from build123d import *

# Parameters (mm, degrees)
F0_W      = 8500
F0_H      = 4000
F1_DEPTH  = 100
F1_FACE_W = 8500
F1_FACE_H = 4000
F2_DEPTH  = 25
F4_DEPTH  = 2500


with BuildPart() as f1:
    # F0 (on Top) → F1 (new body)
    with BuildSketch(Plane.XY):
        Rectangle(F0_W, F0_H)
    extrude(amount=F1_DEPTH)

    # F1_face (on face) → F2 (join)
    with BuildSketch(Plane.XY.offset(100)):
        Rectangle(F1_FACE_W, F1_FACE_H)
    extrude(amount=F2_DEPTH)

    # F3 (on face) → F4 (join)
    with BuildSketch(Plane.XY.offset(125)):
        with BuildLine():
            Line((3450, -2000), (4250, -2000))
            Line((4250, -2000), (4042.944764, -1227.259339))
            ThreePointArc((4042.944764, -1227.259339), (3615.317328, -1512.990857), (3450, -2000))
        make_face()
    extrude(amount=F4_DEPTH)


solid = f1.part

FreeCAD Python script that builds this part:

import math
import FreeCAD as App
import Part
import Sketcher
Q = App.Units.Quantity

doc = App.newDocument("Part")
body = doc.addObject("PartDesign::Body", "Body")

sketch1 = doc.addObject("Sketcher::SketchObject", "Sketch")
body.addObject(sketch1)
sketch1.AttachmentSupport = (doc.XY_Plane, [""])
sketch1.MapMode = "FlatFace"
sketch1.addGeometry(Part.LineSegment(App.Vector(-4250, 2000, 0), App.Vector(-4250, -2000, 0)), False)
sketch1.addGeometry(Part.LineSegment(App.Vector(-4250, -2000, 0), App.Vector(4250, -2000, 0)), False)
sketch1.addGeometry(Part.LineSegment(App.Vector(4250, -2000, 0), App.Vector(4250, 2000, 0)), False)
sketch1.addGeometry(Part.LineSegment(App.Vector(4250, 2000, 0), App.Vector(-4250, 2000, 0)), False)
sketch1.addConstraint(Sketcher.Constraint("Coincident", 0, 2, 1, 1))
sketch1.addConstraint(Sketcher.Constraint("Coincident", 1, 2, 2, 1))
sketch1.addConstraint(Sketcher.Constraint("Coincident", 2, 2, 3, 1))
sketch1.addConstraint(Sketcher.Constraint("Coincident", 3, 2, 0, 1))
sketch1.addConstraint(Sketcher.Constraint("Vertical", 0))
sketch1.addConstraint(Sketcher.Constraint("Horizontal", 1))
sketch1.addConstraint(Sketcher.Constraint("Vertical", 2))
sketch1.addConstraint(Sketcher.Constraint("Horizontal", 3))
sketch1.addConstraint(Sketcher.Constraint("Symmetric", 0, 2, 2, 2, -1, 1))
sketch1.addConstraint(Sketcher.Constraint("DistanceX", 1, 1, 1, 2, Q("8500 mm")))
sketch1.addConstraint(Sketcher.Constraint("DistanceY", 0, 2, 0, 1, Q("4000 mm")))
pad1 = doc.addObject("PartDesign::Pad", "Pad")
body.addObject(pad1)
pad1.Profile = sketch1
pad1.Length = 100

sketch2 = doc.addObject("Sketcher::SketchObject", "Sketch001")
body.addObject(sketch2)
sketch2.AttachmentSupport = (doc.XY_Plane, [""])
sketch2.MapMode = "FlatFace"
sketch2.AttachmentOffset = App.Placement(App.Vector(0, 0, 100), App.Rotation())
sketch2.addGeometry(Part.LineSegment(App.Vector(-4250, 2000, 0), App.Vector(-4250, -2000, 0)), False)
sketch2.addGeometry(Part.LineSegment(App.Vector(-4250, -2000, 0), App.Vector(4250, -2000, 0)), False)
sketch2.addGeometry(Part.LineSegment(App.Vector(4250, -2000, 0), App.Vector(4250, 2000, 0)), False)
sketch2.addGeometry(Part.LineSegment(App.Vector(4250, 2000, 0), App.Vector(-4250, 2000, 0)), False)
sketch2.addConstraint(Sketcher.Constraint("Coincident", 0, 2, 1, 1))
sketch2.addConstraint(Sketcher.Constraint("Coincident", 1, 2, 2, 1))
sketch2.addConstraint(Sketcher.Constraint("Coincident", 2, 2, 3, 1))
sketch2.addConstraint(Sketcher.Constraint("Coincident", 3, 2, 0, 1))
sketch2.addConstraint(Sketcher.Constraint("Vertical", 0))
sketch2.addConstraint(Sketcher.Constraint("Horizontal", 1))
sketch2.addConstraint(Sketcher.Constraint("Vertical", 2))
sketch2.addConstraint(Sketcher.Constraint("Horizontal", 3))
sketch2.addConstraint(Sketcher.Constraint("Symmetric", 0, 2, 2, 2, -1, 1))
sketch2.addConstraint(Sketcher.Constraint("DistanceX", 1, 1, 1, 2, Q("8500 mm")))
sketch2.addConstraint(Sketcher.Constraint("DistanceY", 0, 2, 0, 1, Q("4000 mm")))
pad2 = doc.addObject("PartDesign::Pad", "Pad001")
body.addObject(pad2)
pad2.Profile = sketch2
pad2.Length = 25

sketch3 = doc.addObject("Sketcher::SketchObject", "Sketch002")
body.addObject(sketch3)
sketch3.AttachmentSupport = (doc.XY_Plane, [""])
sketch3.MapMode = "FlatFace"
sketch3.AttachmentOffset = App.Placement(App.Vector(0, 0, 125), App.Rotation())
sketch3.addGeometry(Part.LineSegment(App.Vector(3450, -2000, 0), App.Vector(4250, -2000, 0)), False)
sketch3.addGeometry(Part.LineSegment(App.Vector(4250, -2000, 0), App.Vector(4043, -1227, 0)), False)
sketch3.addGeometry(Part.ArcOfCircle(Part.Circle(App.Vector(4250, -2000, 0), App.Vector(0, 0, 1), 800), math.radians(105), math.radians(180)), False)
sketch3.addConstraint(Sketcher.Constraint("Coincident", 0, 2, 1, 1))
sketch3.addConstraint(Sketcher.Constraint("Coincident", 1, 2, 2, 1))
sketch3.addConstraint(Sketcher.Constraint("Coincident", 2, 2, 0, 1))
sketch3.addConstraint(Sketcher.Constraint("Horizontal", 0))
sketch3.addConstraint(Sketcher.Constraint("Coincident", 0, 2, 2, 3))
sketch3.addConstraint(Sketcher.Constraint("Radius", 2, Q("800.000001 mm")))
sketch3.addConstraint(Sketcher.Constraint("Angle", 1, Q("105 deg")))
sketch3.addConstraint(Sketcher.Constraint("DistanceX", -1, 1, 2, 3, Q("4250.000001 mm")))
sketch3.addConstraint(Sketcher.Constraint("DistanceY", 2, 3, -1, 1, Q("2000.000001 mm")))
pad3 = doc.addObject("PartDesign::Pad", "Pad002")
body.addObject(pad3)
pad3.Profile = sketch3
pad3.Length = 2500

doc.recompute()
